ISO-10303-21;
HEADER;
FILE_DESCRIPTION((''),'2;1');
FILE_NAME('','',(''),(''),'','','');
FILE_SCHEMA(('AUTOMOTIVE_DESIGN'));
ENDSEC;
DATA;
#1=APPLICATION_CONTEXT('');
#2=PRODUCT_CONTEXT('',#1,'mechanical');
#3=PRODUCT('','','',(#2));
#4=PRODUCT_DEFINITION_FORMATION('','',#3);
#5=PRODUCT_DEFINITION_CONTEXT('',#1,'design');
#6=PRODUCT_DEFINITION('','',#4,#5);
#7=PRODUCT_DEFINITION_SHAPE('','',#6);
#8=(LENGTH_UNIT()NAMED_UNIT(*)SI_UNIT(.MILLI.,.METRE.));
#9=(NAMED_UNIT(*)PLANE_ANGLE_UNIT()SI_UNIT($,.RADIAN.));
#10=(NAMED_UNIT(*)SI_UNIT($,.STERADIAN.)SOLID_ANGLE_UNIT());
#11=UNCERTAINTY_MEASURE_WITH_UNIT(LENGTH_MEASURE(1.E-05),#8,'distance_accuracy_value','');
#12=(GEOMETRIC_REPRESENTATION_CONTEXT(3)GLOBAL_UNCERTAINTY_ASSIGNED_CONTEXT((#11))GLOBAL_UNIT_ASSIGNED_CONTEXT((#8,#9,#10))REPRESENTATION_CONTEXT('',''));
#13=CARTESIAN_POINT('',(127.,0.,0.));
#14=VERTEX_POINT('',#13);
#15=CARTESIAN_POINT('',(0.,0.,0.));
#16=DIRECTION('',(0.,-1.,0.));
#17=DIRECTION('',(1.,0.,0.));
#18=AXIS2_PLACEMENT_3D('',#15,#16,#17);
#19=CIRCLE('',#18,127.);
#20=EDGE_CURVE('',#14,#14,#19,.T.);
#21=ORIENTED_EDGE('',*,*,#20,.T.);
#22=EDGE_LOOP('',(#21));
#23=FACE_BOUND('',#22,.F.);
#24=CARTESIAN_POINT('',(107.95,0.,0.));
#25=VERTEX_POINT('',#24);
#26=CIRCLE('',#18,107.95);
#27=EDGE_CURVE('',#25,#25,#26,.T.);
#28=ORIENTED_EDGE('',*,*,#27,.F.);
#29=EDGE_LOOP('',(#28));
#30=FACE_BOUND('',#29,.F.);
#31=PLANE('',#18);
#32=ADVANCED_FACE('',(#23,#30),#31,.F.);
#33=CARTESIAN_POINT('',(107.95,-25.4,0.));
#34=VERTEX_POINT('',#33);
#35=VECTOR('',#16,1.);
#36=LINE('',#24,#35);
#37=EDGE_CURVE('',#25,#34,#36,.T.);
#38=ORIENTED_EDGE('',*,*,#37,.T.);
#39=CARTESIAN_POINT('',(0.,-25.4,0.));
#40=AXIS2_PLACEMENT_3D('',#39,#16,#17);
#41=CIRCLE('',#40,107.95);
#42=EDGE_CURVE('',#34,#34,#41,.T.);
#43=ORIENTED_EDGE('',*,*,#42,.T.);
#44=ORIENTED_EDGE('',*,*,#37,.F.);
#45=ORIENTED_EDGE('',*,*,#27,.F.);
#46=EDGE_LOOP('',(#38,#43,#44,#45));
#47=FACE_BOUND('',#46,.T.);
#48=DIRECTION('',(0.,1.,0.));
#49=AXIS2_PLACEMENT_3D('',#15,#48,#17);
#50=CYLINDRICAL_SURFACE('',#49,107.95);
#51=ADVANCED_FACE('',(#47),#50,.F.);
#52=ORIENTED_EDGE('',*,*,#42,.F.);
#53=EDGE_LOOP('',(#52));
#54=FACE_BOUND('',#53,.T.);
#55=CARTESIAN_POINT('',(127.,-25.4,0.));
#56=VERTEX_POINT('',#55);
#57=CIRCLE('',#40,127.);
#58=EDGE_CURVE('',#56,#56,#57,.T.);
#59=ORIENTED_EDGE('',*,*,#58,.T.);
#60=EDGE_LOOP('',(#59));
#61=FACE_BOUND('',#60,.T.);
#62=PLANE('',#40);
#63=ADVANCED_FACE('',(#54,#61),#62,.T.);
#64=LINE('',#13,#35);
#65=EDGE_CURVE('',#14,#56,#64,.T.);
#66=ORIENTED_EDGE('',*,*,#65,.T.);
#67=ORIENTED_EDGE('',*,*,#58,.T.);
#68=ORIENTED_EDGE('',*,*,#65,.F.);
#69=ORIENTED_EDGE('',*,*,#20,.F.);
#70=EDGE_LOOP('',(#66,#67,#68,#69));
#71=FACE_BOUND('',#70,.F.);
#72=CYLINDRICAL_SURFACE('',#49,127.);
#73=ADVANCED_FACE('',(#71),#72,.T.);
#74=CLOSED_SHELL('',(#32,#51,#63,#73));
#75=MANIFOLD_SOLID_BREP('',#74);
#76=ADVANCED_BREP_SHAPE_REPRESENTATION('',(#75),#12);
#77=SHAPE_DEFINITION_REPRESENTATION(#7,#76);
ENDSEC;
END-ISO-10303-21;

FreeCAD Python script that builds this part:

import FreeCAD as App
import Part
import Sketcher
Q = App.Units.Quantity

doc = App.newDocument("Part")
body = doc.addObject("PartDesign::Body", "Body")

sketch1 = body.newObject("Sketcher::SketchObject", "Sketch")
sketch1.AttachmentSupport = (doc.getObject("XZ_Plane"), [""])
sketch1.MapMode = "FlatFace"
sketch1.addGeometry([
    Part.Circle(App.Vector(0, 0, 0), App.Vector(0, 0, 1), 127),
    Part.Circle(App.Vector(0, 0, 0), App.Vector(0, 0, 1), 107.95),
], False)
sketch1.addConstraint([
    Sketcher.Constraint("Coincident", 0, 3, -1, 1),
    Sketcher.Constraint("Coincident", 1, 3, -1, 1),
    Sketcher.Constraint("Diameter", 0, Q("10 in")),
    Sketcher.Constraint("Diameter", 1, Q("8.5 in")),
])
pad1 = body.newObject("PartDesign::Pad", "Pad")
pad1.Profile = sketch1
pad1.Length = Q("1 in")

doc.recompute()
